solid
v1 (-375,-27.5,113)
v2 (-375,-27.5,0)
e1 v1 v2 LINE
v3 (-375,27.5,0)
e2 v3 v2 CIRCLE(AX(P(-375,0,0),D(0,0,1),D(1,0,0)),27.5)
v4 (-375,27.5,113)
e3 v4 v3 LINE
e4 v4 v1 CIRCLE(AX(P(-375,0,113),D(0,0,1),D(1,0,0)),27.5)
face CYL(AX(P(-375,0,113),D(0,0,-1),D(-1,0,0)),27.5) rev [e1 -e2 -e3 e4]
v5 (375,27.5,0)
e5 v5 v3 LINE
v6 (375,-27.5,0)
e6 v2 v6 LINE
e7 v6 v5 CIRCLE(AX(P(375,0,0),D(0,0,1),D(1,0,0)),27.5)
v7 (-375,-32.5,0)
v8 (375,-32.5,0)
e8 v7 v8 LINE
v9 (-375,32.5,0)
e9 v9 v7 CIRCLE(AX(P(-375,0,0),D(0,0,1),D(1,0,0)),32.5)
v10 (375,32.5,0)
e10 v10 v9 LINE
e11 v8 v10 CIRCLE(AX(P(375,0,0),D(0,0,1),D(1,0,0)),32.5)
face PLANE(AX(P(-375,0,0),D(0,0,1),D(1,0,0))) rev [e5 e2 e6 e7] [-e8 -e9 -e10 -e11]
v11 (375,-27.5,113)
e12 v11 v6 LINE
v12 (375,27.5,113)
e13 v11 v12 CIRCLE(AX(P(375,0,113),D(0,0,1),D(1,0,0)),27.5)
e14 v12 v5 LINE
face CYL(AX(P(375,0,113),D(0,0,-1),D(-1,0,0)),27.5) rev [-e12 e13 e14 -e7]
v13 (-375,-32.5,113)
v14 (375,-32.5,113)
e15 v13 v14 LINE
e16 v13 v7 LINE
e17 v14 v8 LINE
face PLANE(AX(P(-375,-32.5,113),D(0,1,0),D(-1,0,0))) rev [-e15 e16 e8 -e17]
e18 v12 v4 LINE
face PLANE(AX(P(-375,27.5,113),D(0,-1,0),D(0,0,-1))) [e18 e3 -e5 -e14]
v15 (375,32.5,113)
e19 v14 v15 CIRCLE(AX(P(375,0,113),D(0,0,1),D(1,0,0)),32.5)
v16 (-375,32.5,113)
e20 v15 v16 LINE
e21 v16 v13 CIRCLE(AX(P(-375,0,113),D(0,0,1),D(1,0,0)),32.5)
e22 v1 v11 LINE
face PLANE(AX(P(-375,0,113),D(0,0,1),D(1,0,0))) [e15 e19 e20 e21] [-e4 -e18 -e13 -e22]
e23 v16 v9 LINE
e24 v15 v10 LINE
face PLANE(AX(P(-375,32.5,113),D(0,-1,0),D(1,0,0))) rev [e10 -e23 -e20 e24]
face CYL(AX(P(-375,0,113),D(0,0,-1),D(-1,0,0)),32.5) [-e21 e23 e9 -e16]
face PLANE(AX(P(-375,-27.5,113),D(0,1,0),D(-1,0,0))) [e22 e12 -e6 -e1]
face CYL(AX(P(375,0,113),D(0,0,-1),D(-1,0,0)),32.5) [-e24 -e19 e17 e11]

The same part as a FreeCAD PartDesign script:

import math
import FreeCAD as App
import Part
import Sketcher

doc = App.newDocument("Part")
params = doc.addObject("Spreadsheet::Sheet", "Params")
for row, (alias, value) in enumerate([
    ("sketch1_radius", "32.5 mm"),
    ("sketch1_radius2", "27.5 mm"),
    ("sketch1_width", "750 mm"),
    ("pad1_length", "113 mm"),
], start=1):
    params.set(f"A{row}", alias)
    params.set(f"B{row}", "=" + value)
    params.setAlias(f"B{row}", alias)

body = doc.addObject("PartDesign::Body", "Body")

sketch1 = doc.addObject("Sketcher::SketchObject", "Sketch")
body.addObject(sketch1)
sketch1.AttachmentSupport = (doc.XY_Plane, [""])
sketch1.MapMode = "FlatFace"
sketch1.addGeometry([
    Part.LineSegment(App.Vector(375, 32, 0), App.Vector(-375, 32, 0)),
    Part.ArcOfCircle(Part.Circle(App.Vector(-375, 0, 0), App.Vector(0, 0, 1), 32), math.radians(90), math.radians(270)),
    Part.LineSegment(App.Vector(-375, -32, 0), App.Vector(375, -32, 0)),
    Part.ArcOfCircle(Part.Circle(App.Vector(375, 0, 0), App.Vector(0, 0, 1), 32), math.radians(-90), math.radians(90)),
    Part.LineSegment(App.Vector(-375, 28, 0), App.Vector(375, 28, 0)),
    Part.ArcOfCircle(Part.Circle(App.Vector(375, 0, 0), App.Vector(0, 0, 1), 28), math.radians(-90), math.radians(90)),
    Part.LineSegment(App.Vector(375, -28, 0), App.Vector(-375, -28, 0)),
    Part.ArcOfCircle(Part.Circle(App.Vector(-375, 0, 0), App.Vector(0, 0, 1), 28), math.radians(90), math.radians(270)),
], False)
sketch1.addConstraint([
    Sketcher.Constraint("Tangent", 0, 2, 1, 1),
    Sketcher.Constraint("Tangent", 1, 2, 2, 1),
    Sketcher.Constraint("Tangent", 2, 2, 3, 1),
    Sketcher.Constraint("Tangent", 3, 2, 0, 1),
    Sketcher.Constraint("Tangent", 4, 2, 5, 2),
    Sketcher.Constraint("Tangent", 5, 1, 6, 1),
    Sketcher.Constraint("Tangent", 6, 2, 7, 2),
    Sketcher.Constraint("Tangent", 7, 1, 4, 1),
    Sketcher.Constraint("Horizontal", 0),
    Sketcher.Constraint("Horizontal", 2),
    Sketcher.Constraint("Horizontal", 4),
    Sketcher.Constraint("Horizontal", 6),
    Sketcher.Constraint("Coincident", 5, 3, 3, 3),
    Sketcher.Constraint("Symmetric", 1, 3, 3, 3, -1, 1),
    Sketcher.Constraint("Vertical", 7, 3, 0, 2),
    Sketcher.Constraint("Radius", 1, 32.5),
    Sketcher.Constraint("Radius", 5, 27.5),
    Sketcher.Constraint("DistanceX", 0, 2, 0, 1, 750.0),
])
sketch1.setExpression("Constraints[15]", "Params.sketch1_radius")
sketch1.setExpression("Constraints[16]", "Params.sketch1_radius2")
sketch1.setExpression("Constraints[17]", "Params.sketch1_width")
pad1 = doc.addObject("PartDesign::Pad", "Pad")
body.addObject(pad1)
pad1.Profile = sketch1
pad1.setExpression("Length", "Params.pad1_length")

doc.recompute()
